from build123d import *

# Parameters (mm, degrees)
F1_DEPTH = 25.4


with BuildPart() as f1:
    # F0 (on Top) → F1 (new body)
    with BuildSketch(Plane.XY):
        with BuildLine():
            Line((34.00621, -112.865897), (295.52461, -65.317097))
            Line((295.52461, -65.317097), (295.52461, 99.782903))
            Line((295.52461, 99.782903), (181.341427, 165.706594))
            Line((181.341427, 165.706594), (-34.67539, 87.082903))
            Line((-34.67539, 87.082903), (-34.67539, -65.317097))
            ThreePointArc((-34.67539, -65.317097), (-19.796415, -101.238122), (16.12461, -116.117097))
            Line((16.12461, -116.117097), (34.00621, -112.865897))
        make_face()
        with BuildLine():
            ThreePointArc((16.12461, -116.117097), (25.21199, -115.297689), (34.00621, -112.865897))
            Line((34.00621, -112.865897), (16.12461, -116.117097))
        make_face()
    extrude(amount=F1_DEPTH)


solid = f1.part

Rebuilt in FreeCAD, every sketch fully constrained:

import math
import FreeCAD as App
import Part
import Sketcher

V = App.Vector
Q = App.Units.Quantity

doc = App.newDocument("Part")
params = doc.addObject("Spreadsheet::Sheet", "Params")
for row, (alias, value) in enumerate([
    ("sketch1_radius", "1.9999999 in"),
    ("sketch1_height", "6 in"),
    ("sketch1_height2", "6.5 in"),
    ("pad1_length", "1 in"),
], start=1):
    params.set(f"A{row}", alias)
    params.set(f"B{row}", "=" + value)
    params.setAlias(f"B{row}", alias)

body = doc.addObject("PartDesign::Body", "Body")

# Sketch on XY plane
sketch1 = body.newObject("Sketcher::SketchObject", "Sketch")
sketch1.AttachmentSupport = (doc.getObject("XY_Plane"), [""])
sketch1.MapMode = "FlatFace"
sketch1.addGeometry([
    Part.LineSegment(V(296, -65, 0), V(296, 100, 0)),  # 0
    Part.LineSegment(V(296, 100, 0), V(181, 166, 0)),  # 1
    Part.LineSegment(V(181, 166, 0), V(-35, 87, 0)),  # 2
    Part.LineSegment(V(-35, 87, 0), V(-35, -65, 0)),  # 3
    Part.ArcOfCircle(Part.Circle(V(16, -65, 0), V(0, 0, 1), 51), math.radians(180), math.radians(270)),  # 4
    Part.ArcOfCircle(Part.Circle(V(16, -65, 0), V(0, 0, 1), 51), math.radians(-90), math.radians(-69)),  # 5
    Part.LineSegment(V(34, -113, 0), V(296, -65, 0)),  # 6
], False)
sketch1.addConstraint([
    Sketcher.Constraint("Coincident", 0, 2, 1, 1),
    Sketcher.Constraint("Coincident", 1, 2, 2, 1),
    Sketcher.Constraint("Coincident", 2, 2, 3, 1),
    Sketcher.Constraint("Tangent", 3, 2, 4, 1),
    Sketcher.Constraint("Tangent", 4, 2, 5, 1),
    Sketcher.Constraint("Coincident", 5, 2, 6, 1),
    Sketcher.Constraint("Coincident", 6, 2, 0, 1),
    Sketcher.Constraint("Vertical", 0),
    Sketcher.Constraint("Vertical", 3),
    Sketcher.Constraint("Horizontal", 3, 2, 6, 2),
    Sketcher.Constraint("Radius", 4, Q("1.9999999 in")),
    Sketcher.Constraint("DistanceY", 3, 2, 3, 1, Q("6 in")),
    Sketcher.Constraint("DistanceY", 0, 1, 0, 2, Q("6.5 in")),
    Sketcher.Constraint("Angle", 1, Q("150 deg")),
    Sketcher.Constraint("Angle", 2, Q("-160 deg")),
    Sketcher.Constraint("DistanceX", 4, 3, 0, 2, Q("11.0000001 in")),
    Sketcher.Constraint("DistanceX", 3, 2, 4, 2, Q("2 in")),
    Sketcher.Constraint("Radius", 5, 50.799969),
    Sketcher.Constraint("DistanceX", 4, 2, 5, 2, Q("0.704 in")),
    Sketcher.Constraint("DistanceY", 4, 3, -1, 1, 65.317099),
    Sketcher.Constraint("DistanceX", -1, 1, 4, 3, 16.124608),
])
sketch1.setExpression("Constraints[10]", "Params.sketch1_radius")
sketch1.setExpression("Constraints[11]", "Params.sketch1_height")
sketch1.setExpression("Constraints[12]", "Params.sketch1_height2")
pad1 = body.newObject("PartDesign::Pad", "Pad")
pad1.Profile = sketch1
pad1.setExpression("Length", "Params.pad1_length")

doc.recompute()
